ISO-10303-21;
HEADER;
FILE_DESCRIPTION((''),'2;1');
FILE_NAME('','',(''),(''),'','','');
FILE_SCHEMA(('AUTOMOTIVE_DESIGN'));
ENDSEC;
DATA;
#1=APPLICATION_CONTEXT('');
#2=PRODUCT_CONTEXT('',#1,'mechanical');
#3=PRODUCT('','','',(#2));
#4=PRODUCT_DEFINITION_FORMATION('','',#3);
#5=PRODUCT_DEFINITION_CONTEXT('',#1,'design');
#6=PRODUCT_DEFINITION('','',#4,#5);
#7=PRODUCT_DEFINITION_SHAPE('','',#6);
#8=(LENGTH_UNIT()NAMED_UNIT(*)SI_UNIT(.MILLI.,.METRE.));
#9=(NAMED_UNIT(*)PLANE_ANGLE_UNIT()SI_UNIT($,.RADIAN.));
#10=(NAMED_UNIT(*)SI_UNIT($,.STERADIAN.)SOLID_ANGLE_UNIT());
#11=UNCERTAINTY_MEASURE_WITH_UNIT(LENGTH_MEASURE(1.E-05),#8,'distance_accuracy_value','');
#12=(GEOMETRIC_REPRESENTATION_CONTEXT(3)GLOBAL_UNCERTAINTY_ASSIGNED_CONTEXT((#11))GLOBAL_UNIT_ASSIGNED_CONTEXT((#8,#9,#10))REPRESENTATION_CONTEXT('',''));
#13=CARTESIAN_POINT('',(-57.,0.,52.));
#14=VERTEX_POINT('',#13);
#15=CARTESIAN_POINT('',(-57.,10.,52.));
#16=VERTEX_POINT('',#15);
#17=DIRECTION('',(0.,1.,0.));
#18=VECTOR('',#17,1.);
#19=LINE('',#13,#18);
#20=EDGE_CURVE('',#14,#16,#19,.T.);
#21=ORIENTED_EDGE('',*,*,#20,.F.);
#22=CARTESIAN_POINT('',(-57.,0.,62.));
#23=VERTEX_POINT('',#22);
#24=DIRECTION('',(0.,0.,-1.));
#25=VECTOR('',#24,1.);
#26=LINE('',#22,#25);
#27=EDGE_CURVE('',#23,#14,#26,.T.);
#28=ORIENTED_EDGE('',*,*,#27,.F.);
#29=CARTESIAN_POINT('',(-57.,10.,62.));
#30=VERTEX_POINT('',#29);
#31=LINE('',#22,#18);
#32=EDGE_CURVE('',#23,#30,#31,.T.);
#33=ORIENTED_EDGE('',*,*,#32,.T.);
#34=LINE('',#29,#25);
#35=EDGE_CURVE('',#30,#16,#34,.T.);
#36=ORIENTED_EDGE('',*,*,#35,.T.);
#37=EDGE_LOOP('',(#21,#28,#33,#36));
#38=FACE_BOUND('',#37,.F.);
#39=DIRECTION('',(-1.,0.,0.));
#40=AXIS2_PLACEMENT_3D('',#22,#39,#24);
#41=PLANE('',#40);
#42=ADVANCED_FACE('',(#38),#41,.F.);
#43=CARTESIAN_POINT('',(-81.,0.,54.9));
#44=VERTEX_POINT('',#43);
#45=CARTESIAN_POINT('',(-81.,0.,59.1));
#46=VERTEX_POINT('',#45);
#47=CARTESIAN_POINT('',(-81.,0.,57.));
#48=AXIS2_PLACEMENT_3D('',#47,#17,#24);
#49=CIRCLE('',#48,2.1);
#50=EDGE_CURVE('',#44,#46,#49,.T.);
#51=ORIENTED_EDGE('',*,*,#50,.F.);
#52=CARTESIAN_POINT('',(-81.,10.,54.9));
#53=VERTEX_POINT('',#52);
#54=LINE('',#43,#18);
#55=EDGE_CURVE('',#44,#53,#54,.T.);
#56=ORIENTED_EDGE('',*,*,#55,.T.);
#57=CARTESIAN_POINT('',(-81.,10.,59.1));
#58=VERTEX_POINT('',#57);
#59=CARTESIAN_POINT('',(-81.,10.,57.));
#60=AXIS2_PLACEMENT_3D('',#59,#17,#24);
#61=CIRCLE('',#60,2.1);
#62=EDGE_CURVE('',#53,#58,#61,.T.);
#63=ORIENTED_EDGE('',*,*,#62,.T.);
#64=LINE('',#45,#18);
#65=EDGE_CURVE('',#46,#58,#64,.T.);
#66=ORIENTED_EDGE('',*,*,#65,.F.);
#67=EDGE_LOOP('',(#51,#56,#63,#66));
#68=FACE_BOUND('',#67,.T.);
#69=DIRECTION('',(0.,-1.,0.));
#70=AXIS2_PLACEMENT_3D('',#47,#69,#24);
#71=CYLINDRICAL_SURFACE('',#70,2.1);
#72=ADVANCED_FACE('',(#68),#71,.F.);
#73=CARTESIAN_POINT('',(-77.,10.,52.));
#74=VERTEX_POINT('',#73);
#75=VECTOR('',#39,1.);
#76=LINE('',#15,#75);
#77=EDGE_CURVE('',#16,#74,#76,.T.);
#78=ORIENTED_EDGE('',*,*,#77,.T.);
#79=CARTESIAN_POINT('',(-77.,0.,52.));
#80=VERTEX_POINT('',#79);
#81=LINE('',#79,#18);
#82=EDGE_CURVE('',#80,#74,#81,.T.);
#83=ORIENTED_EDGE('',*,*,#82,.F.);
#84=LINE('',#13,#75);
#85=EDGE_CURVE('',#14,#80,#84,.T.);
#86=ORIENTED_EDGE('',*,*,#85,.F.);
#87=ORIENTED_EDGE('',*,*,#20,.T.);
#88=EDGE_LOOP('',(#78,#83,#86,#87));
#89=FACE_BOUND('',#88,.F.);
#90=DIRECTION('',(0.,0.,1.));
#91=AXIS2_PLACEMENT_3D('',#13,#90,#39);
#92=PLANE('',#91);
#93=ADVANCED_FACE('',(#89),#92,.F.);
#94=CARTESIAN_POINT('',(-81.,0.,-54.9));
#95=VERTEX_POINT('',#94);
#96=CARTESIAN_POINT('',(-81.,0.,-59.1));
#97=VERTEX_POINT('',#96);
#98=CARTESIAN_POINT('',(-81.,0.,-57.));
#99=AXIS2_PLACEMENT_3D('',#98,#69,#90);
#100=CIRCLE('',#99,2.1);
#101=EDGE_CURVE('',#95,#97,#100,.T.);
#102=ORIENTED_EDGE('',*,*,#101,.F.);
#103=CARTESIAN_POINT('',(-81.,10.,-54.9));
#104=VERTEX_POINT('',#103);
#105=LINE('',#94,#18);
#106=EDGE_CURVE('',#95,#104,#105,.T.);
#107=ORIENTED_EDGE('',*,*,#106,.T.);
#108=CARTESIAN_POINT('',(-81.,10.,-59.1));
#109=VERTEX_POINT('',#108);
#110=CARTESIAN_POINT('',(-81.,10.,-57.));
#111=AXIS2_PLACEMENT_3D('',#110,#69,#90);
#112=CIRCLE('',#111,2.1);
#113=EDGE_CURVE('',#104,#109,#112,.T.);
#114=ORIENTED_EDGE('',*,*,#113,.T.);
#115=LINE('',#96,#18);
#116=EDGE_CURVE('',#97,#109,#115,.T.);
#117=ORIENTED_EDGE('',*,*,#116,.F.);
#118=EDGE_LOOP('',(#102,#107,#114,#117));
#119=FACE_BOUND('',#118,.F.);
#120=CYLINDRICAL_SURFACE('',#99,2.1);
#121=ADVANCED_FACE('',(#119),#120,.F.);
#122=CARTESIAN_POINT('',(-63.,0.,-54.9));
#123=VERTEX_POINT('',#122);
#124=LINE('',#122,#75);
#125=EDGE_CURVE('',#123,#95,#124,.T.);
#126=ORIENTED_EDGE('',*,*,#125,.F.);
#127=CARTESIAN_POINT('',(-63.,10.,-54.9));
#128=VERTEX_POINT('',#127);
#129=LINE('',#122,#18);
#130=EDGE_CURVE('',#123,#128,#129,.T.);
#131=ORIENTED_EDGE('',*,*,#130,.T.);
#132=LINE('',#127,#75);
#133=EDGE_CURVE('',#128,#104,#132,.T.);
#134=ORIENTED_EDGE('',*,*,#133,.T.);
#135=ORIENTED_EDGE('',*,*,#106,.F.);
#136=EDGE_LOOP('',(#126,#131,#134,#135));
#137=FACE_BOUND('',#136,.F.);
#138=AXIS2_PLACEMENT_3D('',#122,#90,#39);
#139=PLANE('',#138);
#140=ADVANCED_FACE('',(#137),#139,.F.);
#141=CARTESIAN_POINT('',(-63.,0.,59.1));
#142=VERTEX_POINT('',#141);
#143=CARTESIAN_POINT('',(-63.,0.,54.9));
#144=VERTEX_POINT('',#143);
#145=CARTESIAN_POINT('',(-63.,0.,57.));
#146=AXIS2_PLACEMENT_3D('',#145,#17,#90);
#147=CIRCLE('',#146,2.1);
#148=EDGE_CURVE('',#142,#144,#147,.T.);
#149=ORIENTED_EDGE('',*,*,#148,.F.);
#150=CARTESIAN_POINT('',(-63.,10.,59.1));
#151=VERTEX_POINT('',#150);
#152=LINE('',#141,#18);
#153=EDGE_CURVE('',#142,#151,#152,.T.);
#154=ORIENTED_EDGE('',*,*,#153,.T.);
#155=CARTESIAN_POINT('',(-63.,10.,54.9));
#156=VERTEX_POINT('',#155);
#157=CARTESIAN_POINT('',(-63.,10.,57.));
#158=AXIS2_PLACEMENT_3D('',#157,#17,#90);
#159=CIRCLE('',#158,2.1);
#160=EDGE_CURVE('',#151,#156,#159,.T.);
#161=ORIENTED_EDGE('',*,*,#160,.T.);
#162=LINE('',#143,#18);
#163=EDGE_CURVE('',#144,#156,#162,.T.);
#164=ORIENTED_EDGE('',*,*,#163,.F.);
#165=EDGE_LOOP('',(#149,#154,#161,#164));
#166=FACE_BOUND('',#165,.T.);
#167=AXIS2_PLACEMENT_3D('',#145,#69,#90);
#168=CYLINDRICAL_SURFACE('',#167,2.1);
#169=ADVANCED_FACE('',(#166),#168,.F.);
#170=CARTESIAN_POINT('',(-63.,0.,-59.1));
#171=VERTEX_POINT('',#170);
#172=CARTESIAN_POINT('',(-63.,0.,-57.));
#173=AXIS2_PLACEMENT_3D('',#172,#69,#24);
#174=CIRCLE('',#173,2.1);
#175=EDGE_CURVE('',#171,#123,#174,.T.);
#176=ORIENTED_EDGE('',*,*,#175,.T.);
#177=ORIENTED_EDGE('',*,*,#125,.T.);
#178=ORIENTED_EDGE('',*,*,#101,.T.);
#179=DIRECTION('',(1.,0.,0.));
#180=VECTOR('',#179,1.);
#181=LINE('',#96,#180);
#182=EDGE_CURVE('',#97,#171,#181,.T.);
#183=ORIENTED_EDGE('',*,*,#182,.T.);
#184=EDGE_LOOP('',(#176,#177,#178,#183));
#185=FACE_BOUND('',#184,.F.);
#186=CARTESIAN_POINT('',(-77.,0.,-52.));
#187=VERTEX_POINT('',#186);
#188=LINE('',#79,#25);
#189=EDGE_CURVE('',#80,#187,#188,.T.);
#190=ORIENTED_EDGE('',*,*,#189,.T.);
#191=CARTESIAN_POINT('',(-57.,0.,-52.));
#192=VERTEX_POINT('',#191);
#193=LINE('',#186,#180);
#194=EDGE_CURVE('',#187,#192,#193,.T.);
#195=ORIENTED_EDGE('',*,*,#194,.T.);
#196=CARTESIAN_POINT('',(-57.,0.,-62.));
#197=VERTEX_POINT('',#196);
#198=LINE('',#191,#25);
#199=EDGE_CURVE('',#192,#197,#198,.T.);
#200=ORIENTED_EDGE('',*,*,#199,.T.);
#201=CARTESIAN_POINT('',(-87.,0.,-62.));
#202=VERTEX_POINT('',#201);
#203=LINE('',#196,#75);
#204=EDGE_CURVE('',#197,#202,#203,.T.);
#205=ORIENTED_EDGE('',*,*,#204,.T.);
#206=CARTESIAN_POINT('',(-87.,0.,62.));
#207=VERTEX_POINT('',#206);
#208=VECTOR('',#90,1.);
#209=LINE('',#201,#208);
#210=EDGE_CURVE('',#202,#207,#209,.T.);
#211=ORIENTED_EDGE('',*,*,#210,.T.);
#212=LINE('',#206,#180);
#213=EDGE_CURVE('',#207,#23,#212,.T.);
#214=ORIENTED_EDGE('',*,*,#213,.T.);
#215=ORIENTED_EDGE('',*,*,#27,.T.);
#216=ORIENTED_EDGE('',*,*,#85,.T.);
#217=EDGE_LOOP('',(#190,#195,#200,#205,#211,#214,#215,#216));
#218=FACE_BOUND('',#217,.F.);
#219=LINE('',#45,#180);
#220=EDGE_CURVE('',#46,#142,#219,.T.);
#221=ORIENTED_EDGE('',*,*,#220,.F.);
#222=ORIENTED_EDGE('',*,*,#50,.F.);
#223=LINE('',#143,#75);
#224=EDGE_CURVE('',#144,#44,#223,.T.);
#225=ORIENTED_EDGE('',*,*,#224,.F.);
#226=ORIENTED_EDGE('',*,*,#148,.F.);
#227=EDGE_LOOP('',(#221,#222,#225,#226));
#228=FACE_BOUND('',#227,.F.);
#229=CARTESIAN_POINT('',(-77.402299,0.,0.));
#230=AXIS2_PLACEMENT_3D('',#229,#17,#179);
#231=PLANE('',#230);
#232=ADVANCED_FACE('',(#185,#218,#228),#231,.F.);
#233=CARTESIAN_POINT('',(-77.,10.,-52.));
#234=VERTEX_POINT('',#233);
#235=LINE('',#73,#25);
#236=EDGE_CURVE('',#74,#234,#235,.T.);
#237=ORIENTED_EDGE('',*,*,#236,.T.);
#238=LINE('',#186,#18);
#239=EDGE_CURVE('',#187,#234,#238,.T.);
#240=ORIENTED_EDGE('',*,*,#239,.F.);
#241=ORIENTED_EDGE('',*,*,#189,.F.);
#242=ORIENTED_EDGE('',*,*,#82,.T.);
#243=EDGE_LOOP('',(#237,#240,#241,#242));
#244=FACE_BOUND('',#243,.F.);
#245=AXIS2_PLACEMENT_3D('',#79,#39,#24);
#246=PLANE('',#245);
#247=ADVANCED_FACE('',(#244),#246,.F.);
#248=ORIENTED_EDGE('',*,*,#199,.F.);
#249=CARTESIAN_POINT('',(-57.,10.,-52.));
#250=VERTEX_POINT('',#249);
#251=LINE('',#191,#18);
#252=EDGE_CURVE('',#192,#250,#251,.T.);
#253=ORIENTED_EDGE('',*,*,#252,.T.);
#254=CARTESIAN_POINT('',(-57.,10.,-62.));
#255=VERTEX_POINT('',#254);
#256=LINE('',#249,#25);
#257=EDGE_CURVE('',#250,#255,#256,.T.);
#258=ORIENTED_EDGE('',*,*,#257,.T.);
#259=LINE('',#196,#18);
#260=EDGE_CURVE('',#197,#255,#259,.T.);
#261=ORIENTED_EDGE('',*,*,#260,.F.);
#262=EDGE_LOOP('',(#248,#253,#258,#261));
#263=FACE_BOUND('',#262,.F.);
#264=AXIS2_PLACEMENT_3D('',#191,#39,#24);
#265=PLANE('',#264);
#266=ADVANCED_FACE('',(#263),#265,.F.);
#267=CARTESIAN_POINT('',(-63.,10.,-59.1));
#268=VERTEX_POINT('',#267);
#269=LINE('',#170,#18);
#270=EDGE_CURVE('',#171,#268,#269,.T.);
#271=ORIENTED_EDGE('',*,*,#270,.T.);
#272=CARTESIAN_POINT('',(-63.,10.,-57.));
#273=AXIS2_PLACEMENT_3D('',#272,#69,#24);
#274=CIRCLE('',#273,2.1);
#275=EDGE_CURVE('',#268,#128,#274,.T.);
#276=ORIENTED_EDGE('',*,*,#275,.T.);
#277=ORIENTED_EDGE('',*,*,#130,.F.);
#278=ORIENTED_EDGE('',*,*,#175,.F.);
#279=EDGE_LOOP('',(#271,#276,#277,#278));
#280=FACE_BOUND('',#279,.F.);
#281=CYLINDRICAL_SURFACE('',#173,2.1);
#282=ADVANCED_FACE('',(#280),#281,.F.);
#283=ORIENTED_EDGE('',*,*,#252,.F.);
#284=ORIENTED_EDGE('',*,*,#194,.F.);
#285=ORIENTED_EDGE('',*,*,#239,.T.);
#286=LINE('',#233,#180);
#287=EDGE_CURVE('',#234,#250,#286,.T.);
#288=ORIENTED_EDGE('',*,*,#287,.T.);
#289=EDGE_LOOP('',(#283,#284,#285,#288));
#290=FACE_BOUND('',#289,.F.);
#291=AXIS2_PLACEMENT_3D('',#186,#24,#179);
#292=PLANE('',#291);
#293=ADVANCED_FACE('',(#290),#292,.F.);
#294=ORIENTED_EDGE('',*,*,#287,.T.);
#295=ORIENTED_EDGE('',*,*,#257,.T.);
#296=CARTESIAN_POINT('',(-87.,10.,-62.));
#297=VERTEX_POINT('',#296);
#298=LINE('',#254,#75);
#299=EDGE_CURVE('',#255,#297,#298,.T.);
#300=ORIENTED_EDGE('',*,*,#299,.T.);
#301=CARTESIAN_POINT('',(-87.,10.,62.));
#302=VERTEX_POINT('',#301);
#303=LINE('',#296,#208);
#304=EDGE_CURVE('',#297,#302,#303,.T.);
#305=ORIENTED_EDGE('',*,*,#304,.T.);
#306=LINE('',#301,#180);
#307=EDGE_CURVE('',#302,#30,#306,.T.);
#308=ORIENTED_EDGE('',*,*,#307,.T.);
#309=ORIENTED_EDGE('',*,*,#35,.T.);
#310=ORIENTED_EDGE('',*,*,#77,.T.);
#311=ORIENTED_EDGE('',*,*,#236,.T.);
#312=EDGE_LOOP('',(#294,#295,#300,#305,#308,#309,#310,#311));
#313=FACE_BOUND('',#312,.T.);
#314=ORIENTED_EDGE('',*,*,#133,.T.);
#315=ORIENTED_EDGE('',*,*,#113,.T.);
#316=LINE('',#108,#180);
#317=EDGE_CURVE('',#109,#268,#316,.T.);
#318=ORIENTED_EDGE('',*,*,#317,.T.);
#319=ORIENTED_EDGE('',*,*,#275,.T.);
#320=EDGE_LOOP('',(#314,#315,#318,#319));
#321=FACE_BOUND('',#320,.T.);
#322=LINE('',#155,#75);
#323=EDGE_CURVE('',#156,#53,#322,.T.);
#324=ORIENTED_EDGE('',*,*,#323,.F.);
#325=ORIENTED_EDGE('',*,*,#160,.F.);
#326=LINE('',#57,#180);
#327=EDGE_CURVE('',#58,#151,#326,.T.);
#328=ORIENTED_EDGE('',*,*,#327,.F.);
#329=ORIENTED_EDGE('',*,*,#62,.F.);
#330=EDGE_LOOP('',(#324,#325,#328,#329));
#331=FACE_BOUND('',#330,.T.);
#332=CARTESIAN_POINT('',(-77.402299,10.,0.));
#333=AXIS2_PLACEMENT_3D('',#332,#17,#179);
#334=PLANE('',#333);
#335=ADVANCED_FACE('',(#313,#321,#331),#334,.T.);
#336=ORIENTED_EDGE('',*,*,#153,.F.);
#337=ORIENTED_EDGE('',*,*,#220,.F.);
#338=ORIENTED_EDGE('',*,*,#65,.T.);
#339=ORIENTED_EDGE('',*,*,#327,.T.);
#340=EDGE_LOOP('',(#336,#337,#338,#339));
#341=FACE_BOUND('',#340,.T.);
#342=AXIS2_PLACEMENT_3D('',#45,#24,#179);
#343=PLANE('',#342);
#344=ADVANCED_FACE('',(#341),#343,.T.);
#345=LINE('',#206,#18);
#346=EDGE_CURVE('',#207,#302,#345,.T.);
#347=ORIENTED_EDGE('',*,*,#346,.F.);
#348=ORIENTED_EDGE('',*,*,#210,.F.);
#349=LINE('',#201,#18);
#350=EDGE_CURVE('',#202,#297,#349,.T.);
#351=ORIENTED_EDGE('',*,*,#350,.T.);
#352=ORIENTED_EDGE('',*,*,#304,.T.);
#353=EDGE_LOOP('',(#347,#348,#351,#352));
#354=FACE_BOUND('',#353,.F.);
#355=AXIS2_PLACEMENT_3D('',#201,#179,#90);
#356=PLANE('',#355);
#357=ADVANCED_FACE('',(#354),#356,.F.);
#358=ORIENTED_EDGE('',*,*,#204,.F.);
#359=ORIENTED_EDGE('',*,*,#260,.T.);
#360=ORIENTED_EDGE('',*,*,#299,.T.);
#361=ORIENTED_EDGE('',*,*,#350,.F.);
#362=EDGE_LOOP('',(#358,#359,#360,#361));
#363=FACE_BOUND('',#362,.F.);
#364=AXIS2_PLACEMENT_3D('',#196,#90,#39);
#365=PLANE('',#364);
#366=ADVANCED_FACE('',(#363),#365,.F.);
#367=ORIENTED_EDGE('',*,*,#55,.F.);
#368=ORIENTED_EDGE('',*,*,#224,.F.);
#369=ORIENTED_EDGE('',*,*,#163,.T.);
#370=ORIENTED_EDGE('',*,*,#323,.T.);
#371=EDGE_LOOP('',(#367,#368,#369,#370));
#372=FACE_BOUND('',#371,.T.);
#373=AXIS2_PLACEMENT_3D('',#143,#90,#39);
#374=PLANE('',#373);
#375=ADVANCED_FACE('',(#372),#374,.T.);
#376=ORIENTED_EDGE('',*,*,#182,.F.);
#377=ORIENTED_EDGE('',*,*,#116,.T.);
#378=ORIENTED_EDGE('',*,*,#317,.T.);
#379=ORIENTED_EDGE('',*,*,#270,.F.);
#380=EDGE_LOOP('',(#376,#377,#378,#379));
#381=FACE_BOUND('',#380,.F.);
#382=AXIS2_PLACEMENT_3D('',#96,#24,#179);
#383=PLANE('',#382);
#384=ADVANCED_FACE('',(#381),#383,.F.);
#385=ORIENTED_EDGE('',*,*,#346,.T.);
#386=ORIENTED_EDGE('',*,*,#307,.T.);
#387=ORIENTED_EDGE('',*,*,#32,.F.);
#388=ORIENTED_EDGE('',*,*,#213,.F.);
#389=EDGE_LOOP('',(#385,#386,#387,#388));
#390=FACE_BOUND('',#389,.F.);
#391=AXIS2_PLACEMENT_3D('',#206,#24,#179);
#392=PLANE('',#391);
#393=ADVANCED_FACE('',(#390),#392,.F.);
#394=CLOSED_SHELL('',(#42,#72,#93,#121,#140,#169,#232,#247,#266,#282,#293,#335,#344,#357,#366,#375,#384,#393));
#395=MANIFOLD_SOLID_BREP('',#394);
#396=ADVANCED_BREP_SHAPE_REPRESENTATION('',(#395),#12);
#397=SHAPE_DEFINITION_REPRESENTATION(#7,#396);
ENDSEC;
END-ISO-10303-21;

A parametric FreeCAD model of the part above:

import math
import FreeCAD as App
import Part
import Sketcher

V = App.Vector
Q = App.Units.Quantity

doc = App.newDocument("Part")
body = doc.addObject("PartDesign::Body", "Body")

# Sketch on XZ plane
sketch1 = doc.addObject("Sketcher::SketchObject", "Sketch")
body.addObject(sketch1)
sketch1.AttachmentSupport = (doc.XZ_Plane, [""])
sketch1.MapMode = "FlatFace"
sketch1.addGeometry([
    Part.LineSegment(V(-57, -52, 0), V(-57, -62, 0)),  # 0
    Part.LineSegment(V(-57, -62, 0), V(-87, -62, 0)),  # 1
    Part.LineSegment(V(-87, -62, 0), V(-87, 62, 0)),  # 2
    Part.LineSegment(V(-87, 62, 0), V(-57, 62, 0)),  # 3
    Part.LineSegment(V(-57, 62, 0), V(-57, 52, 0)),  # 4
    Part.LineSegment(V(-57, 52, 0), V(-77, 52, 0)),  # 5
    Part.LineSegment(V(-77, 52, 0), V(-77, -52, 0)),  # 6
    Part.LineSegment(V(-77, -52, 0), V(-57, -52, 0)),  # 7
    Part.LineSegment(V(-63, 59.1, 0), V(-81, 59.1, 0)),  # 8
    Part.ArcOfCircle(Part.Circle(V(-81, 57, 0), V(0, 0, 1), 2.1), math.radians(90), math.radians(270)),  # 9
    Part.LineSegment(V(-81, 54.9, 0), V(-63, 54.9, 0)),  # 10
    Part.ArcOfCircle(Part.Circle(V(-63, 57, 0), V(0, 0, 1), 2.1), math.radians(-90), math.radians(90)),  # 11
    Part.ArcOfCircle(Part.Circle(V(-81, -57, 0), V(0, 0, 1), 2.1), math.radians(90), math.radians(270)),  # 12
    Part.LineSegment(V(-81, -59.1, 0), V(-63, -59.1, 0)),  # 13
    Part.ArcOfCircle(Part.Circle(V(-63, -57, 0), V(0, 0, 1), 2.1), math.radians(-90), math.radians(90)),  # 14
    Part.LineSegment(V(-63, -54.9, 0), V(-81, -54.9, 0)),  # 15
], False)
sketch1.addConstraint([
    Sketcher.Constraint("Coincident", 0, 2, 1, 1),
    Sketcher.Constraint("Coincident", 1, 2, 2, 1),
    Sketcher.Constraint("Coincident", 2, 2, 3, 1),
    Sketcher.Constraint("Coincident", 3, 2, 4, 1),
    Sketcher.Constraint("Coincident", 4, 2, 5, 1),
    Sketcher.Constraint("Coincident", 5, 2, 6, 1),
    Sketcher.Constraint("Coincident", 6, 2, 7, 1),
    Sketcher.Constraint("Coincident", 7, 2, 0, 1),
    Sketcher.Constraint("Tangent", 8, 2, 9, 1),
    Sketcher.Constraint("Tangent", 9, 2, 10, 1),
    Sketcher.Constraint("Tangent", 10, 2, 11, 1),
    Sketcher.Constraint("Tangent", 11, 2, 8, 1),
    Sketcher.Constraint("Tangent", 12, 2, 13, 1),
    Sketcher.Constraint("Tangent", 13, 2, 14, 1),
    Sketcher.Constraint("Tangent", 14, 2, 15, 1),
    Sketcher.Constraint("Tangent", 15, 2, 12, 1),
    Sketcher.Constraint("Vertical", 0),
    Sketcher.Constraint("Horizontal", 1),
    Sketcher.Constraint("Vertical", 2),
    Sketcher.Constraint("Horizontal", 3),
    Sketcher.Constraint("Vertical", 4),
    Sketcher.Constraint("Horizontal", 5),
    Sketcher.Constraint("Vertical", 6),
    Sketcher.Constraint("Horizontal", 7),
    Sketcher.Constraint("Horizontal", 8),
    Sketcher.Constraint("Horizontal", 10),
    Sketcher.Constraint("Horizontal", 13),
    Sketcher.Constraint("Horizontal", 15),
    Sketcher.Constraint("Equal", 11, 12),
    Sketcher.Constraint("Symmetric", 9, 3, 12, 3, -1),
    Sketcher.Constraint("Symmetric", 0, 2, 3, 2, -1),
    Sketcher.Constraint("Vertical", 11, 3, 14, 3),
    Sketcher.Constraint("Equal", 0, 4),
    Sketcher.Constraint("Radius", 9, Q("2.1 mm")),
    Sketcher.Constraint("DistanceX", 1, 2, 1, 1, Q("30 mm")),
    Sketcher.Constraint("DistanceX", 5, 2, 5, 1, Q("20 mm")),
    Sketcher.Constraint("DistanceX", 8, 2, 8, 1, Q("18 mm")),
    Sketcher.Constraint("DistanceY", 0, 2, 0, 1, Q("10 mm")),
    Sketcher.Constraint("DistanceY", 2, 1, 2, 2, Q("124 mm")),
    Sketcher.Constraint("DistanceX", 9, 3, -1, 1, Q("81 mm")),
    Sketcher.Constraint("DistanceY", -1, 1, 9, 3, Q("57 mm")),
    Sketcher.Constraint("DistanceX", 0, 2, -1, 1, Q("57 mm")),
])
pad1 = doc.addObject("PartDesign::Pad", "Pad")
body.addObject(pad1)
pad1.Profile = sketch1
pad1.Length = 10
pad1.Reversed = True

doc.recompute()
